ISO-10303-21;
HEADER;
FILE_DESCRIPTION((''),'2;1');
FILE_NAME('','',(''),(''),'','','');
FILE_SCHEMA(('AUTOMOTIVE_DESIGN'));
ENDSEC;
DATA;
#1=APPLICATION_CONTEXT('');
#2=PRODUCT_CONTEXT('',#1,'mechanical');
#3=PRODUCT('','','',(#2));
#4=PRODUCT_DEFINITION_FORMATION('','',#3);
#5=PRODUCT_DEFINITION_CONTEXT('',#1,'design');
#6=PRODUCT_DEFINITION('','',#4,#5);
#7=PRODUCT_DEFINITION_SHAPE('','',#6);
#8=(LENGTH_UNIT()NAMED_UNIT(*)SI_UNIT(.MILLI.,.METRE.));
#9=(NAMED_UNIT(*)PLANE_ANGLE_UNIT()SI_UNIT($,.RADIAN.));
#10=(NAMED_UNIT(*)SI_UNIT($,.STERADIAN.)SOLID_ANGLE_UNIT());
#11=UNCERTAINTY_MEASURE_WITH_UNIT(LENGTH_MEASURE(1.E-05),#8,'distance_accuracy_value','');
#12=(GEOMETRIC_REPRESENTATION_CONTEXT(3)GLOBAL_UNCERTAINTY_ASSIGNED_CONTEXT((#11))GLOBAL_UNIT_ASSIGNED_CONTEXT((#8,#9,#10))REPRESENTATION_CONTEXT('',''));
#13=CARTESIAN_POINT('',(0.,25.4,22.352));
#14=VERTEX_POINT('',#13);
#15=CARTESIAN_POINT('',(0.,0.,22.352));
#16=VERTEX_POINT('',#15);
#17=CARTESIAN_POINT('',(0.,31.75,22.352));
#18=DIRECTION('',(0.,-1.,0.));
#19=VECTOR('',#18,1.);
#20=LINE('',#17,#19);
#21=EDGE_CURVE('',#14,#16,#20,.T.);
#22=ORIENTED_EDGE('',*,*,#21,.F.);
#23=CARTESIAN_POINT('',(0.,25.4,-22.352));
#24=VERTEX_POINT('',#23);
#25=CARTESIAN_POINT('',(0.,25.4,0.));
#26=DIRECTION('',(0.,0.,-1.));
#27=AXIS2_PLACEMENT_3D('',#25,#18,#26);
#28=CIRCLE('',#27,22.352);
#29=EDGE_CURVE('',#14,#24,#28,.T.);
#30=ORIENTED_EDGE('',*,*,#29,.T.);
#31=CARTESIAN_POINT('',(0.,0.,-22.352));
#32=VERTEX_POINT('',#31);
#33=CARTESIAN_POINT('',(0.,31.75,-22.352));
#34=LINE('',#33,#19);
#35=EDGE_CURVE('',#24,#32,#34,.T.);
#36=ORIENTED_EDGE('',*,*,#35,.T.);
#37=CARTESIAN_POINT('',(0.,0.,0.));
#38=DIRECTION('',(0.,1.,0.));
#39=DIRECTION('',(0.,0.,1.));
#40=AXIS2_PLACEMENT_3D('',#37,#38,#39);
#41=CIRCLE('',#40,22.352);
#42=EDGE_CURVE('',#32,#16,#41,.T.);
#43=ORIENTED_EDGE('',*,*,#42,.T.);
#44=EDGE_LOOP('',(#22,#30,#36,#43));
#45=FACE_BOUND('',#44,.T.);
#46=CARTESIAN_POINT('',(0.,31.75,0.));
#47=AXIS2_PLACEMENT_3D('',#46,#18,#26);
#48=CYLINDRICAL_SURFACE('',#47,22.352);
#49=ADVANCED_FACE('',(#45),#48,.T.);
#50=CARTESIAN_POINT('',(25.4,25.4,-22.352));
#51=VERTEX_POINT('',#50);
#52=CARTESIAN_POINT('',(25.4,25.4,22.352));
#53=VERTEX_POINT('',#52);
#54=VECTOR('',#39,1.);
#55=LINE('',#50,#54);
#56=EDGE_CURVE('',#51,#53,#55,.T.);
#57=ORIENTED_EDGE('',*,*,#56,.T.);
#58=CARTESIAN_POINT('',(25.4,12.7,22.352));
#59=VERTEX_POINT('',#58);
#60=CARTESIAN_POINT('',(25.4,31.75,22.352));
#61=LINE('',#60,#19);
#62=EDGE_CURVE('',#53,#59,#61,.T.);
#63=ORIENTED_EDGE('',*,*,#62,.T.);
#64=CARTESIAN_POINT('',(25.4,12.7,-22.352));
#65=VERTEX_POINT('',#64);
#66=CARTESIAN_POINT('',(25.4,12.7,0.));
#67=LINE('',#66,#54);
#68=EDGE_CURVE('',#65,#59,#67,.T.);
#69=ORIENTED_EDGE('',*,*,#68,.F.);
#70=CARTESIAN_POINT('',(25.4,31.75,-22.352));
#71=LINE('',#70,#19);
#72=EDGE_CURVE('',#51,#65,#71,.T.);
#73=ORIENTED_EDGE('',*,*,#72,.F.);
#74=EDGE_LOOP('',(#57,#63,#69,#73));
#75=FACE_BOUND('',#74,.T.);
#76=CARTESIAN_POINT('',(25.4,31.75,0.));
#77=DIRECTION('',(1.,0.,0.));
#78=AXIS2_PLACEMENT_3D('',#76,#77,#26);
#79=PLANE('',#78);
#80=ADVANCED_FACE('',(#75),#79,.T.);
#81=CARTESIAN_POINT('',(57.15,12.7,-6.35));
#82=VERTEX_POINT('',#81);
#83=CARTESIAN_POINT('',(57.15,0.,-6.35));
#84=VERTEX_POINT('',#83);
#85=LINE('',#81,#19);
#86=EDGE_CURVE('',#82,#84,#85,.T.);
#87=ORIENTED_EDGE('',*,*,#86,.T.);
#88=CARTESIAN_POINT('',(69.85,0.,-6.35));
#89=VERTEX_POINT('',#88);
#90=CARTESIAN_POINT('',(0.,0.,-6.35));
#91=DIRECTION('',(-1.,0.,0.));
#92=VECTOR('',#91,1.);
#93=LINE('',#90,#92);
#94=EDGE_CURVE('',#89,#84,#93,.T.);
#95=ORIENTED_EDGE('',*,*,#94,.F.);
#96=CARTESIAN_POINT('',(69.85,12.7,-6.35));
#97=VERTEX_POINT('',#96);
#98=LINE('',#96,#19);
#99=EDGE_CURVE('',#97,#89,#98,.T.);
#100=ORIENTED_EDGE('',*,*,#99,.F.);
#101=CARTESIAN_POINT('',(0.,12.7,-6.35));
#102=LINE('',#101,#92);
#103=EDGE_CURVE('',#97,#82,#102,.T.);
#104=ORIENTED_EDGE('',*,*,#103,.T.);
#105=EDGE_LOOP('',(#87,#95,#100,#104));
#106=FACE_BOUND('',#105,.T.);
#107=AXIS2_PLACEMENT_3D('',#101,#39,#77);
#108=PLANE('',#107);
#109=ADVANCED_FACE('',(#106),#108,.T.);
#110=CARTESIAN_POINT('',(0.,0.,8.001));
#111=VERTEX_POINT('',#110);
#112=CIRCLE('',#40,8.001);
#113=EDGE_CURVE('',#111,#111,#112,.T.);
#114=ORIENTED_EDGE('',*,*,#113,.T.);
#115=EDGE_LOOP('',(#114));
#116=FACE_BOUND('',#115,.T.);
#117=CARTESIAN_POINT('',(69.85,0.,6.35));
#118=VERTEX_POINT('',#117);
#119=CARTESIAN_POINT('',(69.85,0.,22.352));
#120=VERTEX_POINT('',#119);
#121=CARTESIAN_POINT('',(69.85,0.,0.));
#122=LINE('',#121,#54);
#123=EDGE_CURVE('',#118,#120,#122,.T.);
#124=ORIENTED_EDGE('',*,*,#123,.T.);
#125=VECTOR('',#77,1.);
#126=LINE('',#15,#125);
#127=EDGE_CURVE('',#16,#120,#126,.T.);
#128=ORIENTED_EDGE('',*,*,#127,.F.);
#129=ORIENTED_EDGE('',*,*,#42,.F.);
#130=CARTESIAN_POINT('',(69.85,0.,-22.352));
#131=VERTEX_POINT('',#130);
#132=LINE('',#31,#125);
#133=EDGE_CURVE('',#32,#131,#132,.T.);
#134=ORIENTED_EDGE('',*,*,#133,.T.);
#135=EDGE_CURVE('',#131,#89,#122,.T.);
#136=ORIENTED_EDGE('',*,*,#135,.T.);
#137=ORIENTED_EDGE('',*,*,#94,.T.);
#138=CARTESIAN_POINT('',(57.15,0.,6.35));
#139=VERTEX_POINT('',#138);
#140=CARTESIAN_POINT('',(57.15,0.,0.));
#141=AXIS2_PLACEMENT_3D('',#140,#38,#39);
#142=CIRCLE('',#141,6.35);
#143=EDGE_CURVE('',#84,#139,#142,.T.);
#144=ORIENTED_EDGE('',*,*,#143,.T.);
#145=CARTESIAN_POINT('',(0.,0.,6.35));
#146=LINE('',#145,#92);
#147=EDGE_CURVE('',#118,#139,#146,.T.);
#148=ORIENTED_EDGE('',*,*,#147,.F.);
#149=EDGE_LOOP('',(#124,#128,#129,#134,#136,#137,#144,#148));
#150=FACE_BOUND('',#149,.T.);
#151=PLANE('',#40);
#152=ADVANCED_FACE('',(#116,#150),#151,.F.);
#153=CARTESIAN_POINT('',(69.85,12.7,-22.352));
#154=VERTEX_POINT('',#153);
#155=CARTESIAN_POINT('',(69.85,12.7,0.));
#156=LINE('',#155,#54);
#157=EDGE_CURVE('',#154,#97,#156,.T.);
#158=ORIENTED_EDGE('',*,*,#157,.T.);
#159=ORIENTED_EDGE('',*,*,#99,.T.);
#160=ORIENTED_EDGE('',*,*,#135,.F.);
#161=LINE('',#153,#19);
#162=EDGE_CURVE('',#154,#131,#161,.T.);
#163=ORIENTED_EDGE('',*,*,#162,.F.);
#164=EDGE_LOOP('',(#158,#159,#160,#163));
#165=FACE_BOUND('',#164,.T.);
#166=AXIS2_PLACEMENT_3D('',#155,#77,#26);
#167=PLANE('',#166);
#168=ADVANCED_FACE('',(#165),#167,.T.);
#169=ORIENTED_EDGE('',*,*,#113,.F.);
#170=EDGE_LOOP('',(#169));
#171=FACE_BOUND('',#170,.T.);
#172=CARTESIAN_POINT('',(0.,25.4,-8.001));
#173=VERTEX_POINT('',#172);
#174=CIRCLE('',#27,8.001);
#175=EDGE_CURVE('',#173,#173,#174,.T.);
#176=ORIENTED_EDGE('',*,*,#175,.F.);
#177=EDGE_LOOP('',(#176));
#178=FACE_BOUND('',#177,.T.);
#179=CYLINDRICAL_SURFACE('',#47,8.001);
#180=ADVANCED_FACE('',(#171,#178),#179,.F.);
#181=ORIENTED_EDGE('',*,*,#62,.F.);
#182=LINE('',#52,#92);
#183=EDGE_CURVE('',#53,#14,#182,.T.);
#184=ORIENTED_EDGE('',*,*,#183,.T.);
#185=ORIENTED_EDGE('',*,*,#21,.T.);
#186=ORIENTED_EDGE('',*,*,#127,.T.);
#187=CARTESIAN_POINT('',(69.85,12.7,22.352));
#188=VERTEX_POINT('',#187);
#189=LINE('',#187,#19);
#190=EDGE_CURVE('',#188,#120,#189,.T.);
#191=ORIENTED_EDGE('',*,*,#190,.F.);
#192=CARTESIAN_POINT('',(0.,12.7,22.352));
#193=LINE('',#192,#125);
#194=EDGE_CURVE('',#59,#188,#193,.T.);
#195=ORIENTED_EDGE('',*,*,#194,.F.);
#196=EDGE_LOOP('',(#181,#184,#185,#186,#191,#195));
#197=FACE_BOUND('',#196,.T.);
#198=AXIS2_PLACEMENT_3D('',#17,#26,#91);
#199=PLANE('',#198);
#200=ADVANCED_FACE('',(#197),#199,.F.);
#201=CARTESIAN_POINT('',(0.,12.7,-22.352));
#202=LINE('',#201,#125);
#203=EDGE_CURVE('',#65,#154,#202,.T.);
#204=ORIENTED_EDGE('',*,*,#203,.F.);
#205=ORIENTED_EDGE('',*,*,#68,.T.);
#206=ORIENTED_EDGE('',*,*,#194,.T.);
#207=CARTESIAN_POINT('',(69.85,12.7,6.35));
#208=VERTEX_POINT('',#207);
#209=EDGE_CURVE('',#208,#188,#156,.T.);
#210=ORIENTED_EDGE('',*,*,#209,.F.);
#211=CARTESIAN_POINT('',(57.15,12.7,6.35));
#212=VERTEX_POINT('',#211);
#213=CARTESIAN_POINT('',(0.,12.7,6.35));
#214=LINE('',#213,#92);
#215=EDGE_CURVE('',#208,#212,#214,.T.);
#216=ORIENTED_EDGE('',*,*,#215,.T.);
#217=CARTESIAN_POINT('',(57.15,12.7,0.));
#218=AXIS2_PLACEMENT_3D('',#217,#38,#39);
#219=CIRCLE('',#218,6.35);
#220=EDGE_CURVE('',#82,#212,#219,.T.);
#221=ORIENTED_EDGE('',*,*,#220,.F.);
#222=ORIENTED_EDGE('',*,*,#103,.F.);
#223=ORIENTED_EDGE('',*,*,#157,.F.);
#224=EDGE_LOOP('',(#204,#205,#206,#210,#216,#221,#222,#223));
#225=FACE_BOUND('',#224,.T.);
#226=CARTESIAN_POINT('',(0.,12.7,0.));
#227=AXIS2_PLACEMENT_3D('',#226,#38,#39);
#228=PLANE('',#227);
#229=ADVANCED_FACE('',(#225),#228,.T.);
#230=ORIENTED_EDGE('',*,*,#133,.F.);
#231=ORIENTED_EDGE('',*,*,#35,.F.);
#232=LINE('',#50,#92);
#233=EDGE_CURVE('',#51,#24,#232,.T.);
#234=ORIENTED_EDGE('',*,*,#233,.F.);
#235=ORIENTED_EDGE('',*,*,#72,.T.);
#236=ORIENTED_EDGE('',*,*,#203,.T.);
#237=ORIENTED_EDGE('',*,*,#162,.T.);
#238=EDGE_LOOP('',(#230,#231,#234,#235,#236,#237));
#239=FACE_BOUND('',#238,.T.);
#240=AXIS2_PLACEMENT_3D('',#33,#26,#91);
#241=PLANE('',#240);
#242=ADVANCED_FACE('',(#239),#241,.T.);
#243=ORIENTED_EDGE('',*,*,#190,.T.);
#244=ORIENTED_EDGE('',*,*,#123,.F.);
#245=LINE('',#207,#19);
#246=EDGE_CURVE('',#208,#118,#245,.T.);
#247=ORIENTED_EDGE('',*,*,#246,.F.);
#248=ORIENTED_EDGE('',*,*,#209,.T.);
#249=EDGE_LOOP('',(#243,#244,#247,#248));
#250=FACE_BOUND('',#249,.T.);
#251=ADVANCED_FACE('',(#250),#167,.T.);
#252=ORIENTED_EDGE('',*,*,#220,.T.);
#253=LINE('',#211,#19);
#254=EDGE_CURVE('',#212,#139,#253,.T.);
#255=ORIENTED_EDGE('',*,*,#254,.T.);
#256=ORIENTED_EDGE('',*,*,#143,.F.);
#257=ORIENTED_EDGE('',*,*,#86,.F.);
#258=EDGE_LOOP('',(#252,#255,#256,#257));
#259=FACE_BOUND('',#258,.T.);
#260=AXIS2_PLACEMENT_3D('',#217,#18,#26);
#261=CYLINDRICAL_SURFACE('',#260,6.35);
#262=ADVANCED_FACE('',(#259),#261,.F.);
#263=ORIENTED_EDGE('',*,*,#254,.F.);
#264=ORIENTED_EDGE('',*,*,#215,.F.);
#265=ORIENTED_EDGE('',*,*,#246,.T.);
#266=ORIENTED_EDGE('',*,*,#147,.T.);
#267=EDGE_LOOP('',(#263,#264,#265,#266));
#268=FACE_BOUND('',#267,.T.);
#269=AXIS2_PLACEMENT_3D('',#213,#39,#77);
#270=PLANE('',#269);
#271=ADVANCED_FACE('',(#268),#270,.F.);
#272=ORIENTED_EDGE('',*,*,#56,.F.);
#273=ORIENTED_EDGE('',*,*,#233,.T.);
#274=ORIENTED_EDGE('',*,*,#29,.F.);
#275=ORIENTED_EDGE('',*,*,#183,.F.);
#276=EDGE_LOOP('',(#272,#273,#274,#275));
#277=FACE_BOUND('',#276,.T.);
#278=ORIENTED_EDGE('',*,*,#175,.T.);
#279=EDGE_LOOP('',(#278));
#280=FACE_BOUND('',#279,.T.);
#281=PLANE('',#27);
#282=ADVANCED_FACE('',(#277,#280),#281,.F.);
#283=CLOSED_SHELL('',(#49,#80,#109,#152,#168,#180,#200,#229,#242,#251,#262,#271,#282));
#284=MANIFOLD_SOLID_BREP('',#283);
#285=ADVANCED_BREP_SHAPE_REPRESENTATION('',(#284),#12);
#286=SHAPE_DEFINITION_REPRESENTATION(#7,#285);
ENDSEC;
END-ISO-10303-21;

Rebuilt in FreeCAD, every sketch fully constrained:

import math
import FreeCAD as App
import Part
import Sketcher
Q = App.Units.Quantity


def add_polygon(sketch, points):
    """Adds a closed chain of lines whose ends are joined by coincident constraints."""
    first, n = sketch.GeometryCount, len(points)
    for a, b in zip(points, points[1:] + points[:1]):
        sketch.addGeometry(Part.LineSegment(App.Vector(*a, 0), App.Vector(*b, 0)), False)
    for i in range(n):
        sketch.addConstraint(Sketcher.Constraint("Coincident", first + i, 2, first + (i + 1) % n, 1))

doc = App.newDocument("Part")
body = doc.addObject("PartDesign::Body", "Body")

# Sketch on XZ plane
sketch1 = body.newObject("Sketcher::SketchObject", "Sketch")
sketch1.AttachmentSupport = (doc.getObject("XZ_Plane"), [""])
sketch1.MapMode = "FlatFace"
sketch1.addGeometry([
    Part.LineSegment(App.Vector(0, 22.352, 0), App.Vector(25.4, 22.352, 0)),  # 0
    Part.LineSegment(App.Vector(25.4, 22.352, 0), App.Vector(25.4, -22.352, 0)),  # 1
    Part.LineSegment(App.Vector(25.4, -22.352, 0), App.Vector(0, -22.352, 0)),  # 2
    Part.ArcOfCircle(Part.Circle(App.Vector(0, 0, 0), App.Vector(0, 0, 1), 22.352), math.radians(90), math.radians(270)),  # 3
    Part.Circle(App.Vector(0, 0, 0), App.Vector(0, 0, 1), 8.001),  # 4
], False)
sketch1.addConstraint([
    Sketcher.Constraint("Coincident", 0, 2, 1, 1),
    Sketcher.Constraint("Coincident", 1, 2, 2, 1),
    Sketcher.Constraint("Tangent", 2, 2, 3, 2),
    Sketcher.Constraint("Tangent", 3, 1, 0, 1),
    Sketcher.Constraint("Horizontal", 0),
    Sketcher.Constraint("Vertical", 1),
    Sketcher.Constraint("Horizontal", 2),
    Sketcher.Constraint("Coincident", 3, 3, -1, 1),
    Sketcher.Constraint("Coincident", 4, 3, -1, 1),
    Sketcher.Constraint("Diameter", 4, Q("0.63 in")),
    Sketcher.Constraint("DistanceX", 0, 1, 0, 2, Q("1 in")),
    Sketcher.Constraint("Radius", 3, Q("0.88 in")),
])
pad1 = body.newObject("PartDesign::Pad", "Pad")
pad1.Profile = sketch1
pad1.Length = Q("1.25 in")
pad1.Reversed = True

# Sketch on XZ plane
sketch2 = body.newObject("Sketcher::SketchObject", "Sketch001")
sketch2.AttachmentSupport = (doc.getObject("XZ_Plane"), [""])
sketch2.MapMode = "FlatFace"
sketch2.addGeometry([
    Part.LineSegment(App.Vector(69.85, 22.352, 0), App.Vector(69.85, 6.35, 0)),  # 0
    Part.LineSegment(App.Vector(69.85, 6.35, 0), App.Vector(57.15, 6.35, 0)),  # 1
    Part.ArcOfCircle(Part.Circle(App.Vector(57.15, 0, 0), App.Vector(0, 0, 1), 6.35), math.radians(90), math.radians(270)),  # 2
    Part.LineSegment(App.Vector(57.15, -6.35, 0), App.Vector(69.85, -6.35, 0)),  # 3
    Part.LineSegment(App.Vector(69.85, -6.35, 0), App.Vector(69.85, -22.352, 0)),  # 4
    Part.LineSegment(App.Vector(69.85, -22.352, 0), App.Vector(25.4, -22.352, 0)),  # 5
    Part.LineSegment(App.Vector(25.4, -22.352, 0), App.Vector(25.4, 22.352, 0)),  # 6
    Part.LineSegment(App.Vector(25.4, 22.352, 0), App.Vector(69.85, 22.352, 0)),  # 7
], False)
sketch2.addConstraint([
    Sketcher.Constraint("Coincident", 0, 2, 1, 1),
    Sketcher.Constraint("Tangent", 1, 2, 2, 1),
    Sketcher.Constraint("Tangent", 2, 2, 3, 1),
    Sketcher.Constraint("Coincident", 3, 2, 4, 1),
    Sketcher.Constraint("Coincident", 4, 2, 5, 1),
    Sketcher.Constraint("Coincident", 5, 2, 6, 1),
    Sketcher.Constraint("Coincident", 6, 2, 7, 1),
    Sketcher.Constraint("Coincident", 7, 2, 0, 1),
    Sketcher.Constraint("Vertical", 0),
    Sketcher.Constraint("Horizontal", 1),
    Sketcher.Constraint("Horizontal", 3),
    Sketcher.Constraint("Vertical", 4),
    Sketcher.Constraint("Horizontal", 5),
    Sketcher.Constraint("Vertical", 6),
    Sketcher.Constraint("Horizontal", 7),
    Sketcher.Constraint("Symmetric", 0, 2, 3, 2, -1),
    Sketcher.Constraint("Equal", 0, 4),
    Sketcher.Constraint("Radius", 2, Q("0.25 in")),
    Sketcher.Constraint("DistanceX", 1, 2, 1, 1, Q("0.5 in")),
    Sketcher.Constraint("DistanceX", -1, 1, 5, 2, Q("1 in")),
    Sketcher.Constraint("DistanceX", 5, 2, 5, 1, Q("1.75 in")),
    Sketcher.Constraint("DistanceY", 0, 2, 0, 1, Q("0.63 in")),
])
pad2 = body.newObject("PartDesign::Pad", "Pad001")
pad2.Profile = sketch2
pad2.Length = Q("0.5 in")
pad2.Reversed = True

# Sketch on XZ plane
sketch3 = body.newObject("Sketcher::SketchObject", "Sketch002")
sketch3.AttachmentSupport = (doc.getObject("XZ_Plane"), [""])
sketch3.MapMode = "FlatFace"
sketch3.AttachmentOffset = App.Placement(App.Vector(0, 0, -1.25 * 25.4), App.Rotation())
add_polygon(sketch3, [(-22.352, -22.352), (-22.352, 22.352), (25.4, 22.352), (25.4, -22.352)])  # lines 0-3
sketch3.addConstraint([
    Sketcher.Constraint("Vertical", 0),
    Sketcher.Constraint("Horizontal", 1),
    Sketcher.Constraint("Vertical", 2),
    Sketcher.Constraint("Horizontal", 3),
    Sketcher.Constraint("DistanceX", -1, 1, 1, 2, Q("1 in")),
    Sketcher.Constraint("DistanceX", 1, 1, 1, 2, Q("1.88 in")),
    Sketcher.Constraint("DistanceY", 0, 1, 0, 2, Q("1.76 in")),
    Sketcher.Constraint("DistanceY", -1, 1, 0, 2, Q("0.88 in")),
])
pocket1 = body.newObject("PartDesign::Pocket", "Pocket")
pocket1.Profile = sketch3
pocket1.Length = Q("0.25 in")
pocket1.Reversed = True

doc.recompute()
